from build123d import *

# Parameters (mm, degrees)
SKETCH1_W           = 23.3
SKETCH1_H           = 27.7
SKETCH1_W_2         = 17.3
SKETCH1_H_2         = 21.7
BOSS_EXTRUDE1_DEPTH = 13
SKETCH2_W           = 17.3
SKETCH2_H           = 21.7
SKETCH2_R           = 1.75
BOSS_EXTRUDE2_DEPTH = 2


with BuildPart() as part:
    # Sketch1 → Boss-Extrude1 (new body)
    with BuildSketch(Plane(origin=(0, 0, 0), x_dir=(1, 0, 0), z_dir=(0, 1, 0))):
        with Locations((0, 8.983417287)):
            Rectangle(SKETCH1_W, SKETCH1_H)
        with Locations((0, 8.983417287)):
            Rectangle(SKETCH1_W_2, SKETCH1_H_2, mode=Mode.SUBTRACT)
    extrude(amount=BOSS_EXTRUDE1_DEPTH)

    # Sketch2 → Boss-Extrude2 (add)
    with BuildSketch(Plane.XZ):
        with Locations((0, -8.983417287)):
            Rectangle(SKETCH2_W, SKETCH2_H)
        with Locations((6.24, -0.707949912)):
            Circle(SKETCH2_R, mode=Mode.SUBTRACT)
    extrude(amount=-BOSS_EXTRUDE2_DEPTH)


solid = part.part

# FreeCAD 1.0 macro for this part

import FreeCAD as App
import Part
import Sketcher


def add_polygon(sketch, points):
    """Adds a closed chain of lines whose ends are joined by coincident constraints."""
    first, n = sketch.GeometryCount, len(points)
    for a, b in zip(points, points[1:] + points[:1]):
        sketch.addGeometry(Part.LineSegment(App.Vector(*a, 0), App.Vector(*b, 0)), False)
    for i in range(n):
        sketch.addConstraint(Sketcher.Constraint("Coincident", first + i, 2, first + (i + 1) % n, 1))

doc = App.newDocument("Part")
body = doc.addObject("PartDesign::Body", "Body")

# Sketch on XZ plane
sketch1 = doc.addObject("Sketcher::SketchObject", "Sketch")
body.addObject(sketch1)
sketch1.AttachmentSupport = (doc.XZ_Plane, [""])
sketch1.MapMode = "FlatFace"
add_polygon(sketch1, [(-12, -23), (-12, 5), (12, 5), (12, -23)])  # lines 0-3
add_polygon(sketch1, [(9, 2), (-9, 2), (-9, -20), (9, -20)])  # lines 4-7
sketch1.addConstraint([
    Sketcher.Constraint("Vertical", 0),
    Sketcher.Constraint("Horizontal", 1),
    Sketcher.Constraint("Vertical", 2),
    Sketcher.Constraint("Horizontal", 3),
    Sketcher.Constraint("Horizontal", 4),
    Sketcher.Constraint("Vertical", 5),
    Sketcher.Constraint("Horizontal", 6),
    Sketcher.Constraint("Vertical", 7),
    Sketcher.Constraint("DistanceX", 1, 1, 1, 2, 23.3),
    Sketcher.Constraint("DistanceX", 4, 2, 4, 1, 17.3),
    Sketcher.Constraint("DistanceY", 0, 1, 0, 2, 27.7),
    Sketcher.Constraint("DistanceY", 5, 2, 5, 1, 21.7),
    Sketcher.Constraint("DistanceX", 0, 2, 4, 2, 3.0),
    Sketcher.Constraint("DistanceY", 4, 2, 0, 2, 3.0),
    Sketcher.Constraint("DistanceX", 0, 2, -1, 1, 11.65),
    Sketcher.Constraint("DistanceY", -1, 1, 0, 2, 4.866583),
])
pad1 = doc.addObject("PartDesign::Pad", "Pad")
body.addObject(pad1)
pad1.Profile = sketch1
pad1.Length = 13
pad1.Reversed = True

# Sketch on XZ plane
sketch2 = doc.addObject("Sketcher::SketchObject", "Sketch001")
body.addObject(sketch2)
sketch2.AttachmentSupport = (doc.XZ_Plane, [""])
sketch2.MapMode = "FlatFace"
add_polygon(sketch2, [(-8.7, 1.9), (-8.7, -19.8), (8.7, -19.8), (8.7, 1.9)])  # lines 0-3
sketch2.addGeometry(Part.Circle(App.Vector(6.2, -0.7, 0), App.Vector(0, 0, 1), 1.8), False)  # 4
sketch2.addConstraint([
    Sketcher.Constraint("Vertical", 0),
    Sketcher.Constraint("Horizontal", 1),
    Sketcher.Constraint("Vertical", 2),
    Sketcher.Constraint("Horizontal", 3),
    Sketcher.Constraint("Diameter", 4, 3.5),
    Sketcher.Constraint("DistanceX", 1, 1, 1, 2, 17.3),
    Sketcher.Constraint("DistanceY", 0, 2, 0, 1, 21.7),
    Sketcher.Constraint("DistanceX", -1, 1, 4, 3, 6.24),
    Sketcher.Constraint("DistanceX", 0, 2, -1, 1, 8.65),
    Sketcher.Constraint("DistanceY", 4, 3, -1, 1, 0.70795),
    Sketcher.Constraint("DistanceY", 0, 2, -1, 1, 19.833417),
])
pad2 = doc.addObject("PartDesign::Pad", "Pad001")
body.addObject(pad2)
pad2.Profile = sketch2
pad2.Length = 2
pad2.Reversed = True

doc.recompute()
